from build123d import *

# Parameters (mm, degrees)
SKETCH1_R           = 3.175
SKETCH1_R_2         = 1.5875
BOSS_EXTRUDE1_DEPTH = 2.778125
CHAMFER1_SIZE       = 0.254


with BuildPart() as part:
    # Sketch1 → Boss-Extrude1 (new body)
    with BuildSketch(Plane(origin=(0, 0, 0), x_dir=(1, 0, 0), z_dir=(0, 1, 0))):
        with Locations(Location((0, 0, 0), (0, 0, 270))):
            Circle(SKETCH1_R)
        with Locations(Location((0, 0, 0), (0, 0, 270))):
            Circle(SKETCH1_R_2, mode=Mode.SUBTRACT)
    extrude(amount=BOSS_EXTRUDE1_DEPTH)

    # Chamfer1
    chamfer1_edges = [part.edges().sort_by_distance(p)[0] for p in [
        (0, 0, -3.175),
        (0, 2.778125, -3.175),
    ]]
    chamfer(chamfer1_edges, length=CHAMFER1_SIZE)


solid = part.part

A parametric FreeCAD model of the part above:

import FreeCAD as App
import Part
import Sketcher

V = App.Vector
Q = App.Units.Quantity


def edges_at(feature, points):
    """Names of the edges that pass closest to the given points."""
    edges = feature.Shape.Edges
    near = lambda p: min(range(len(edges)), key=lambda i: edges[i].distToShape(Part.Vertex(*p))[0])
    return sorted({f"Edge{near(p) + 1}" for p in points})

doc = App.newDocument("Part")
body = doc.addObject("PartDesign::Body", "Body")

sketch1 = body.newObject("Sketcher::SketchObject", "Sketch")
sketch1.AttachmentSupport = (doc.getObject("XZ_Plane"), [""])
sketch1.MapMode = "FlatFace"
sketch1.addGeometry([
    Part.Circle(V(0, 0, 0), V(0, 0, 1), 3.2),
    Part.Circle(V(0, 0, 0), V(0, 0, 1), 1.6),
], False)
sketch1.addConstraint([
    Sketcher.Constraint("Coincident", 0, 3, -1, 1),
    Sketcher.Constraint("Coincident", 1, 3, -1, 1),
    Sketcher.Constraint("Diameter", 0, Q("0.25 in")),
    Sketcher.Constraint("Diameter", 1, Q("0.125 in")),
])
pad1 = body.newObject("PartDesign::Pad", "Pad")
pad1.Profile = sketch1
pad1.Length = Q("0.109375 in")
pad1.Reversed = True
doc.recompute()

chamfer = body.newObject("PartDesign::Chamfer", "Chamfer")
chamfer.Base = (pad1, edges_at(pad1, [(0, 0, -3.175), (0, 2.778, -3.175)]))
chamfer.Size = Q("0.01 in")

doc.recompute()
